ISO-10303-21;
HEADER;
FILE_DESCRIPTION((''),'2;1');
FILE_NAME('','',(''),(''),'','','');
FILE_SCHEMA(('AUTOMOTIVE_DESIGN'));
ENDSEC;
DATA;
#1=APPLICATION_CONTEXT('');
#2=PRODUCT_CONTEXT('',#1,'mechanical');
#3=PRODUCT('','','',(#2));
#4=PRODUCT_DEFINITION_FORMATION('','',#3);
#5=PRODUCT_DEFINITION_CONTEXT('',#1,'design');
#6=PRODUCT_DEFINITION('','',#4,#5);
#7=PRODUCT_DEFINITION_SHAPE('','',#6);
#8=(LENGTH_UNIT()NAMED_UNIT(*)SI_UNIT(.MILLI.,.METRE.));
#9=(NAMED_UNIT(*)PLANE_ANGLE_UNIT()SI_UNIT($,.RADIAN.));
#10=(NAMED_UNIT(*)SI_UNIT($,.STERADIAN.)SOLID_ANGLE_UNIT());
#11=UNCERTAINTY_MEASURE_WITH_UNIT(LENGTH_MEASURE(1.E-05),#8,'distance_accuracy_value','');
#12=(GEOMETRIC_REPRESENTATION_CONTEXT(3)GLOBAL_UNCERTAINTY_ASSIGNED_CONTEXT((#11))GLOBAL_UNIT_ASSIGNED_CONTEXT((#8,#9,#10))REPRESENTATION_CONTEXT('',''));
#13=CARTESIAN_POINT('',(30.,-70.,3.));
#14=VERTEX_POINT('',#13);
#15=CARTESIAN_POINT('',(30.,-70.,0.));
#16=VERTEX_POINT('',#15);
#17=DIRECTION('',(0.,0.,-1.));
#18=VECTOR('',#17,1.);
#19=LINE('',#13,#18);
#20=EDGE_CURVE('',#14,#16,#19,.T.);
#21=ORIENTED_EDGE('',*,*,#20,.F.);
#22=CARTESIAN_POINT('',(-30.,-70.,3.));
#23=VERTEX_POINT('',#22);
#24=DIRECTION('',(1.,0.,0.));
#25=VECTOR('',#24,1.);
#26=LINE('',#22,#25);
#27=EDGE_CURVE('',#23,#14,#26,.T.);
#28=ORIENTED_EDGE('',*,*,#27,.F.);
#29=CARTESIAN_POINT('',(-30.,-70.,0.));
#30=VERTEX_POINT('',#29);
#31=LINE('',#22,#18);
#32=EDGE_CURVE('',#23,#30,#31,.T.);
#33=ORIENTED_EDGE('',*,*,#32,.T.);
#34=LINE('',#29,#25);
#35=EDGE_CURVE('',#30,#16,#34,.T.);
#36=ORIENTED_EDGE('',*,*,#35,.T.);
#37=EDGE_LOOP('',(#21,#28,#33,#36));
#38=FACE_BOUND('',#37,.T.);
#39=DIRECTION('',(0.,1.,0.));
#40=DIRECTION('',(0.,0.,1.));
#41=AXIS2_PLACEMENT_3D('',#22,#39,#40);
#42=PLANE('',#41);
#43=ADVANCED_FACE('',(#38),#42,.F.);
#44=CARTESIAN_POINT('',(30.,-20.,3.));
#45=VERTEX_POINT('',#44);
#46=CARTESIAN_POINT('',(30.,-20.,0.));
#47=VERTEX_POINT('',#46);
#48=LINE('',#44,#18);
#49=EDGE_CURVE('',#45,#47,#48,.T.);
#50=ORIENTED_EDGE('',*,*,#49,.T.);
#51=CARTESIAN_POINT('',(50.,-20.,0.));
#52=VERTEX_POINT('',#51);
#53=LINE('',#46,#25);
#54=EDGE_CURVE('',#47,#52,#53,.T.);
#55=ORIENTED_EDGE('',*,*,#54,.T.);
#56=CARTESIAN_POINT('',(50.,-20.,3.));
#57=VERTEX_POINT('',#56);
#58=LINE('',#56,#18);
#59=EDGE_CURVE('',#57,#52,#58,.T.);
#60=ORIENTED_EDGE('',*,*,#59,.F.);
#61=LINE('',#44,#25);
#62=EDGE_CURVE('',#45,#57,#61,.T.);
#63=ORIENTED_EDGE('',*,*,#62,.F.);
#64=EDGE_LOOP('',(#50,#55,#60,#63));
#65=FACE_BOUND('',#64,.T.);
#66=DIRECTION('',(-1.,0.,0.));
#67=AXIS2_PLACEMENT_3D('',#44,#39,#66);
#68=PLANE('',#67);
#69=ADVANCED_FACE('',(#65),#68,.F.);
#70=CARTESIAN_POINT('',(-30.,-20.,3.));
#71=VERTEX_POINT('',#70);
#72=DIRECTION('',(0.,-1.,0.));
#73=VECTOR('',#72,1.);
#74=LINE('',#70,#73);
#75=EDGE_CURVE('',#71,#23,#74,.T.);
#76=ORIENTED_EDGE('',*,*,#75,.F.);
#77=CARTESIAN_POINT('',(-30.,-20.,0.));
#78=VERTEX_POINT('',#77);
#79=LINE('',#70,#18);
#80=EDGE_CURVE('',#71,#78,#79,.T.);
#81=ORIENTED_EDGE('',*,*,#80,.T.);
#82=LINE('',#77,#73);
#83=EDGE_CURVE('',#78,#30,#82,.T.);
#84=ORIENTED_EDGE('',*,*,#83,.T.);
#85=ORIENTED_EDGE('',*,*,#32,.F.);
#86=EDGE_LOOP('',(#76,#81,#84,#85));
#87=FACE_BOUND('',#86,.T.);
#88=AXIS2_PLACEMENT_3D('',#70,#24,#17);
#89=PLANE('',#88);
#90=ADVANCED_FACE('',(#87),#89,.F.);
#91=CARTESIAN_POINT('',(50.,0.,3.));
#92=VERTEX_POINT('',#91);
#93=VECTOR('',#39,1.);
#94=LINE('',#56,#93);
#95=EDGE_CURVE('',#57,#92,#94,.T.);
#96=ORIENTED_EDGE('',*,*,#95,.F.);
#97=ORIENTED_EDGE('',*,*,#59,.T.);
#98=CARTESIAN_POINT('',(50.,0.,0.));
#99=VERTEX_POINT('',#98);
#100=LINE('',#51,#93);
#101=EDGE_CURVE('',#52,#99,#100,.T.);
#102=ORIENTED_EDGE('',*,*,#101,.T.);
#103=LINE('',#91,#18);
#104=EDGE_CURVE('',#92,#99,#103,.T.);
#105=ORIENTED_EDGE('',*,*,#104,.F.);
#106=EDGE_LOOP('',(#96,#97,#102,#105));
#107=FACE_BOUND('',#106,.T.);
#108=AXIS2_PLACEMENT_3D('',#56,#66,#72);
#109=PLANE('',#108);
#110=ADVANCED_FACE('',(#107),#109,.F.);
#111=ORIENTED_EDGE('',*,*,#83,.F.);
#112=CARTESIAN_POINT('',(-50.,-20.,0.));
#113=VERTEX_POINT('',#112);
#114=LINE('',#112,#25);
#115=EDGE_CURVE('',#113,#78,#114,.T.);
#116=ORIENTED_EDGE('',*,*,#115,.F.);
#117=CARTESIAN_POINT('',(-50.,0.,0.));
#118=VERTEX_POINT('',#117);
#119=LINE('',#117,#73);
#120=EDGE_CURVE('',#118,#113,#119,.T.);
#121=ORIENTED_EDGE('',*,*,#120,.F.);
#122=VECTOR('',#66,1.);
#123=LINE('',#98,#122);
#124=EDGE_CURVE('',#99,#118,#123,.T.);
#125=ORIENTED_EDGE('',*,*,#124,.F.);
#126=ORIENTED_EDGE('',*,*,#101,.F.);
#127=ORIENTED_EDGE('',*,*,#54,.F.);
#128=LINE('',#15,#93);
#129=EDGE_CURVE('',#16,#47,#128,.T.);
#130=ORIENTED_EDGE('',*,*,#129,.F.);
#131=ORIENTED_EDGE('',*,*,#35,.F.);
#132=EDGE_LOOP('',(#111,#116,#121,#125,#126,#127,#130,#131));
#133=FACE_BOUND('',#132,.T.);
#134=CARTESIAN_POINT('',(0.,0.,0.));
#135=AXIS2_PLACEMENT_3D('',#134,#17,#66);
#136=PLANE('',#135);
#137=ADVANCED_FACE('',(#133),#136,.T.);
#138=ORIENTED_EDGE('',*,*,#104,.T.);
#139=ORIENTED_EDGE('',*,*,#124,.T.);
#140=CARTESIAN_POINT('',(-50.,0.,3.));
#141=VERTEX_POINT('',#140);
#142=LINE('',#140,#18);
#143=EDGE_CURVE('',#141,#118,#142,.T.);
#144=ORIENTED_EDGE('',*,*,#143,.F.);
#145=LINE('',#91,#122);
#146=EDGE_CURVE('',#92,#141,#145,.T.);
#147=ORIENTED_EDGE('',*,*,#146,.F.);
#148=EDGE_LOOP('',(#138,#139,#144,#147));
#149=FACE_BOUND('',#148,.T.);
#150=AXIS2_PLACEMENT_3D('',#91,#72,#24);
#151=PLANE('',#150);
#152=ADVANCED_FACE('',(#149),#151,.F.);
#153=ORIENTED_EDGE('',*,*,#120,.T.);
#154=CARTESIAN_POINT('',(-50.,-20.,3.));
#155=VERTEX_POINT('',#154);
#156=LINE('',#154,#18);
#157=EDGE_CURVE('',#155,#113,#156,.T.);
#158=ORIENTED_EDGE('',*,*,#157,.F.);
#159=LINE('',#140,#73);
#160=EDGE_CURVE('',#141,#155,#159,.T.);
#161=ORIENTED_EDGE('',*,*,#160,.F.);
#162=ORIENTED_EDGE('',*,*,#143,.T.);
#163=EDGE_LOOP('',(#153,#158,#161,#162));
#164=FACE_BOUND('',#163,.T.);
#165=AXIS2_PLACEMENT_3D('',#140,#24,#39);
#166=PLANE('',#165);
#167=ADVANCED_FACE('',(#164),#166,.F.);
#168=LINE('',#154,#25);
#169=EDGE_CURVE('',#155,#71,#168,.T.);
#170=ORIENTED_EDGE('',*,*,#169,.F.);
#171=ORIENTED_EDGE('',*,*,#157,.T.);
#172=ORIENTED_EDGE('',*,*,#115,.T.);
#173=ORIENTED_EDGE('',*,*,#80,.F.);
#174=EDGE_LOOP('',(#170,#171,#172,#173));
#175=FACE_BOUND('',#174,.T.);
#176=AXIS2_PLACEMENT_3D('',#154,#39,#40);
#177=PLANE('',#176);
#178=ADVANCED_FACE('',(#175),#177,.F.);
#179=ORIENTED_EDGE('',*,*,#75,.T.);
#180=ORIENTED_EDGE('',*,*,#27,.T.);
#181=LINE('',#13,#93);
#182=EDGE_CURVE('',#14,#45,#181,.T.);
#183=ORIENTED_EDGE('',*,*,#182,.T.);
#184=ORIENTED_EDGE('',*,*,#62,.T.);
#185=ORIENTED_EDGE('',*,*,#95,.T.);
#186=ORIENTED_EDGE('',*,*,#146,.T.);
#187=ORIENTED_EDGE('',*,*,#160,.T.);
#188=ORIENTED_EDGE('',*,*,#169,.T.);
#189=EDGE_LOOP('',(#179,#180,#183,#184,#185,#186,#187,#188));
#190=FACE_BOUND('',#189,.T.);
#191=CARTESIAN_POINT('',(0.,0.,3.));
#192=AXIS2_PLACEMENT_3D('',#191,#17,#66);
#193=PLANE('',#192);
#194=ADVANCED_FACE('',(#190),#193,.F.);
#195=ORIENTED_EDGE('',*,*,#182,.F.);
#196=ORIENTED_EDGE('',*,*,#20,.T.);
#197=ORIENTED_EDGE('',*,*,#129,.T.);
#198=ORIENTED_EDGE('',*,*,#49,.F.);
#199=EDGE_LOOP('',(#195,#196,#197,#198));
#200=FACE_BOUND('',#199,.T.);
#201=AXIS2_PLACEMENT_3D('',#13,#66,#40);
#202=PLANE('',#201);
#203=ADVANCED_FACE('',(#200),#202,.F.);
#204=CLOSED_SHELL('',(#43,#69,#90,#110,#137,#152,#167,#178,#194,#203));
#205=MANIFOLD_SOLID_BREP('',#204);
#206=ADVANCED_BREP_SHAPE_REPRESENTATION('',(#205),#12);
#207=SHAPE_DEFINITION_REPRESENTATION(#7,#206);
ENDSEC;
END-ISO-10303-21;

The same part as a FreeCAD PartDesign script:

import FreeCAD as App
import Part
import Sketcher
Q = App.Units.Quantity


def add_polygon(sketch, points):
    """Adds a closed chain of lines whose ends are joined by coincident constraints."""
    first, n = sketch.GeometryCount, len(points)
    for a, b in zip(points, points[1:] + points[:1]):
        sketch.addGeometry(Part.LineSegment(App.Vector(*a, 0), App.Vector(*b, 0)), False)
    for i in range(n):
        sketch.addConstraint(Sketcher.Constraint("Coincident", first + i, 2, first + (i + 1) % n, 1))

doc = App.newDocument("Part")
body = doc.addObject("PartDesign::Body", "Body")

sketch1 = body.newObject("Sketcher::SketchObject", "Sketch")
sketch1.AttachmentSupport = (doc.getObject("XY_Plane"), [""])
sketch1.MapMode = "FlatFace"
add_polygon(sketch1, [(-30, -20), (-30, -70), (30, -70), (30, -20), (50, -20), (50, 0), (-50, 0), (-50, -20)])
sketch1.addConstraint([
    Sketcher.Constraint("Vertical", 0),
    Sketcher.Constraint("Horizontal", 1),
    Sketcher.Constraint("Vertical", 2),
    Sketcher.Constraint("Horizontal", 3),
    Sketcher.Constraint("Vertical", 4),
    Sketcher.Constraint("Horizontal", 5),
    Sketcher.Constraint("Vertical", 6),
    Sketcher.Constraint("Horizontal", 7),
    Sketcher.Constraint("Symmetric", 4, 2, 5, 2, -1, 1),
    Sketcher.Constraint("Symmetric", 2, 2, 7, 2, -2),
    Sketcher.Constraint("Equal", 7, 4),
    Sketcher.Constraint("DistanceX", 1, 1, 1, 2, Q("60 mm")),
    Sketcher.Constraint("DistanceX", 3, 1, 3, 2, Q("20 mm")),
    Sketcher.Constraint("DistanceY", 0, 2, 0, 1, Q("50 mm")),
])
pad1 = body.newObject("PartDesign::Pad", "Pad")
pad1.Profile = sketch1
pad1.Length = 3

doc.recompute()
